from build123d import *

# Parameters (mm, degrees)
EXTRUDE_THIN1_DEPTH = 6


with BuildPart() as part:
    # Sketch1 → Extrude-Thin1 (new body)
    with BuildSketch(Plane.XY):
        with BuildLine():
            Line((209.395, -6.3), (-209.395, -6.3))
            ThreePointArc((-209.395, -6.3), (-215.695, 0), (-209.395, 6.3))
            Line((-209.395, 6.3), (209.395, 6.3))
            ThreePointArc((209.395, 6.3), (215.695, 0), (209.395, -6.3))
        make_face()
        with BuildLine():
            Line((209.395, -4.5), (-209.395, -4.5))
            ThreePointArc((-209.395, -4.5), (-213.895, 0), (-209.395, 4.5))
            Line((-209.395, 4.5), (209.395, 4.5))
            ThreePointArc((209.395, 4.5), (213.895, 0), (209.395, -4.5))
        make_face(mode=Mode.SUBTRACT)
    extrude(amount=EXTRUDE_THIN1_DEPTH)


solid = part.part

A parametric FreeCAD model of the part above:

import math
import FreeCAD as App
import Part
import Sketcher
from FreeCAD import Vector

doc = App.newDocument("Part")
body = doc.addObject("PartDesign::Body", "Body")

# Sketch on XY plane
sketch1 = body.newObject("Sketcher::SketchObject", "Sketch")
sketch1.AttachmentSupport = (doc.getObject("XY_Plane"), [""])
sketch1.MapMode = "FlatFace"
sketch1.addGeometry([
    Part.LineSegment(Vector(-209.4, -6.3, 0), Vector(209.4, -6.3, 0)),  # 0
    Part.ArcOfCircle(Part.Circle(Vector(209.4, 0, 0), Vector(0, 0, 1), 6.3), math.radians(-90), math.radians(90)),  # 1
    Part.LineSegment(Vector(209.4, 6.3, 0), Vector(-209.4, 6.3, 0)),  # 2
    Part.ArcOfCircle(Part.Circle(Vector(-209.4, 0, 0), Vector(0, 0, 1), 6.3), math.radians(90), math.radians(270)),  # 3
    Part.LineSegment(Vector(209.4, -4.5, 0), Vector(-209.4, -4.5, 0)),  # 4
    Part.ArcOfCircle(Part.Circle(Vector(-209.4, 0, 0), Vector(0, 0, 1), 4.5), math.radians(90), math.radians(270)),  # 5
    Part.LineSegment(Vector(-209.4, 4.5, 0), Vector(209.4, 4.5, 0)),  # 6
    Part.ArcOfCircle(Part.Circle(Vector(209.4, 0, 0), Vector(0, 0, 1), 4.5), math.radians(-90), math.radians(90)),  # 7
], False)
sketch1.addConstraint([
    Sketcher.Constraint("Tangent", 0, 2, 1, 1),
    Sketcher.Constraint("Tangent", 1, 2, 2, 1),
    Sketcher.Constraint("Tangent", 2, 2, 3, 1),
    Sketcher.Constraint("Tangent", 3, 2, 0, 1),
    Sketcher.Constraint("Tangent", 4, 2, 5, 2),
    Sketcher.Constraint("Tangent", 5, 1, 6, 1),
    Sketcher.Constraint("Tangent", 6, 2, 7, 2),
    Sketcher.Constraint("Tangent", 7, 1, 4, 1),
    Sketcher.Constraint("Horizontal", 0),
    Sketcher.Constraint("Horizontal", 2),
    Sketcher.Constraint("Horizontal", 4),
    Sketcher.Constraint("Horizontal", 6),
    Sketcher.Constraint("Coincident", 5, 3, 3, 3),
    Sketcher.Constraint("Symmetric", 1, 3, 3, 3, -1, 1),
    Sketcher.Constraint("Vertical", 7, 3, 0, 2),
    Sketcher.Constraint("Radius", 1, 6.3),
    Sketcher.Constraint("Radius", 5, 4.5),
    Sketcher.Constraint("DistanceX", 0, 1, 0, 2, 418.79),
])
pad1 = body.newObject("PartDesign::Pad", "Pad")
pad1.Profile = sketch1
pad1.Length = 6

doc.recompute()
